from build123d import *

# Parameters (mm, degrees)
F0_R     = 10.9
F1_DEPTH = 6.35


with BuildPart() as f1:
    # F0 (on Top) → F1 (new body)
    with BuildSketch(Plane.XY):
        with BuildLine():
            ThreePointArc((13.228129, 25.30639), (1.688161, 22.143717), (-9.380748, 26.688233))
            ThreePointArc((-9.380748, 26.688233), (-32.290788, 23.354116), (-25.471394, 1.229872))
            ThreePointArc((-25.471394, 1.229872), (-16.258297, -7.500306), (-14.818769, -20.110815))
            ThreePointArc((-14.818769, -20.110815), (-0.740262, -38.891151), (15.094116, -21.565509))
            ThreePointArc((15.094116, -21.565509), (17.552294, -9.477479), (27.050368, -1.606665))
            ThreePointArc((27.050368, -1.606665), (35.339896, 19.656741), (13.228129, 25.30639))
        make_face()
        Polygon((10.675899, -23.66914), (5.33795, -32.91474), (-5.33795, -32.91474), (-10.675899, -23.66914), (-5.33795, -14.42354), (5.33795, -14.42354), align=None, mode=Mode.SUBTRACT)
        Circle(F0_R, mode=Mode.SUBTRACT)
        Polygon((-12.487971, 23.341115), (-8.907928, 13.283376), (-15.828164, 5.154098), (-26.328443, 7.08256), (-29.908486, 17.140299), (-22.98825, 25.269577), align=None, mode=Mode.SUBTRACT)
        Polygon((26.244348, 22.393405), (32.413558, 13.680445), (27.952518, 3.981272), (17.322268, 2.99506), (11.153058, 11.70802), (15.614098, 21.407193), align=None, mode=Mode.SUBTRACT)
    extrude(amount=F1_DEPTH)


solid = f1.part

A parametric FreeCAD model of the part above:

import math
import FreeCAD as App
import Part
import Sketcher
Q = App.Units.Quantity


def add_polygon(sketch, points):
    """Adds a closed chain of lines whose ends are joined by coincident constraints."""
    first, n = sketch.GeometryCount, len(points)
    for a, b in zip(points, points[1:] + points[:1]):
        sketch.addGeometry(Part.LineSegment(App.Vector(*a, 0), App.Vector(*b, 0)), False)
    for i in range(n):
        sketch.addConstraint(Sketcher.Constraint("Coincident", first + i, 2, first + (i + 1) % n, 1))

doc = App.newDocument("Part")
body = doc.addObject("PartDesign::Body", "Body")

sketch1 = body.newObject("Sketcher::SketchObject", "Sketch")
sketch1.AttachmentSupport = (doc.getObject("XY_Plane"), [""])
sketch1.MapMode = "FlatFace"
sketch1.addGeometry(Part.ArcOfCircle(Part.Circle(App.Vector(2.819327, 40.651181, 0), App.Vector(0, 0, 1), 18.542), math.radians(-131.14522), math.radians(-55.849856)), False)
sketch1.addGeometry(Part.ArcOfCircle(Part.Circle(App.Vector(-19.408207, 15.211837, 0), App.Vector(0, 0, 1), 15.24), math.radians(48.854781), math.radians(246.556352)), False)
sketch1.addGeometry(Part.ArcOfCircle(Part.Circle(App.Vector(-32.848273, -15.78152, 0), App.Vector(0, 0, 1), 18.542001), math.radians(-13.502386), math.radians(66.55635)), False)
sketch1.addGeometry(Part.ArcOfCircle(Part.Circle(App.Vector(0, -23.66914, 0), App.Vector(0, 0, 1), 15.24), math.radians(166.497611), math.radians(367.934072)), False)
sketch1.addGeometry(Part.ArcOfCircle(Part.Circle(App.Vector(33.458623, -19.006091, 0), App.Vector(0, 0, 1), 18.541999), math.radians(110.218888), math.radians(187.934074)), False)
sketch1.addGeometry(Part.ArcOfCircle(Part.Circle(App.Vector(21.783308, 12.694233, 0), App.Vector(0, 0, 1), 15.24), math.radians(-69.781109), math.radians(124.150142)), False)
add_polygon(sketch1, [(5.33795, -14.42354), (10.675899, -23.66914), (5.33795, -32.91474), (-5.33795, -32.91474), (-10.675899, -23.66914), (-5.33795, -14.42354)])
sketch1.addGeometry(Part.Circle(App.Vector(0, 0, 0), App.Vector(0, 0, 1), 10.9), False)
add_polygon(sketch1, [(-22.98825, 25.269577), (-12.487971, 23.341115), (-8.907928, 13.283376), (-15.828164, 5.154098), (-26.328443, 7.08256), (-29.908486, 17.140299)])
add_polygon(sketch1, [(15.614098, 21.407193), (26.244348, 22.393405), (32.413558, 13.680445), (27.952518, 3.981272), (17.322268, 2.99506), (11.153058, 11.70802)])
sketch1.addConstraint(Sketcher.Constraint("Tangent", 0, 1, 1, 1))
sketch1.addConstraint(Sketcher.Constraint("Tangent", 1, 2, 2, 2))
sketch1.addConstraint(Sketcher.Constraint("Tangent", 2, 1, 3, 1))
sketch1.addConstraint(Sketcher.Constraint("Tangent", 3, 2, 4, 2))
sketch1.addConstraint(Sketcher.Constraint("Tangent", 4, 1, 5, 1))
sketch1.addConstraint(Sketcher.Constraint("Tangent", 5, 2, 0, 2))
sketch1.addConstraint(Sketcher.Constraint("Horizontal", 8))
sketch1.addConstraint(Sketcher.Constraint("Horizontal", 11))
sketch1.addConstraint(Sketcher.Constraint("Coincident", 12, 3, -1, 1))
sketch1.addConstraint(Sketcher.Constraint("Equal", 0, 2))
sketch1.addConstraint(Sketcher.Constraint("Equal", 1, 3))
sketch1.addConstraint(Sketcher.Constraint("Equal", 2, 4))
sketch1.addConstraint(Sketcher.Constraint("Equal", 3, 5))
sketch1.addConstraint(Sketcher.Constraint("Symmetric", 6, 2, 9, 2, -2))
sketch1.addConstraint(Sketcher.Constraint("PointOnObject", 3, 3, -2))
sketch1.addConstraint(Sketcher.Constraint("Parallel", 6, 9))
sketch1.addConstraint(Sketcher.Constraint("Parallel", 7, 10))
sketch1.addConstraint(Sketcher.Constraint("Parallel", 13, 16))
sketch1.addConstraint(Sketcher.Constraint("Parallel", 14, 17))
sketch1.addConstraint(Sketcher.Constraint("Parallel", 15, 18))
sketch1.addConstraint(Sketcher.Constraint("Parallel", 19, 22))
sketch1.addConstraint(Sketcher.Constraint("Parallel", 20, 23))
sketch1.addConstraint(Sketcher.Constraint("Parallel", 21, 24))
sketch1.addConstraint(Sketcher.Constraint("Horizontal", 3, 3, 6, 2))
sketch1.addConstraint(Sketcher.Constraint("Vertical", 8, 2, 10, 2))
sketch1.addConstraint(Sketcher.Constraint("Vertical", 7, 2, 11, 2))
sketch1.addConstraint(Sketcher.Constraint("Equal", 10, 13))
sketch1.addConstraint(Sketcher.Constraint("Equal", 13, 14))
sketch1.addConstraint(Sketcher.Constraint("Equal", 14, 15))
sketch1.addConstraint(Sketcher.Constraint("Equal", 15, 16))
sketch1.addConstraint(Sketcher.Constraint("Equal", 18, 19))
sketch1.addConstraint(Sketcher.Constraint("Equal", 19, 20))
sketch1.addConstraint(Sketcher.Constraint("Equal", 20, 21))
sketch1.addConstraint(Sketcher.Constraint("Equal", 21, 22))
sketch1.addConstraint(Sketcher.Constraint("Radius", 1, Q("0.6 in")))
sketch1.addConstraint(Sketcher.Constraint("Radius", 0, Q("0.73 in")))
sketch1.addConstraint(Sketcher.Constraint("Angle", 6, Q("-60.000003 deg")))
sketch1.addConstraint(Sketcher.Constraint("Diameter", 12, 21.8))
sketch1.addConstraint(Sketcher.Constraint("DistanceY", 7, 2, 6, 2, Q("0.364 in")))
sketch1.addConstraint(Sketcher.Constraint("DistanceX", 8, 2, 8, 1, 10.6759))
sketch1.addConstraint(Sketcher.Constraint("DistanceY", -1, 1, 20, 2, Q("0.5386002 in")))
sketch1.addConstraint(Sketcher.Constraint("DistanceY", -1, 1, 15, 2, 5.154098))
sketch1.addConstraint(Sketcher.Constraint("DistanceY", -1, 1, 17, 2, 17.140299))
sketch1.addConstraint(Sketcher.Constraint("DistanceX", 2, 3, 0, 3, 35.6676))
sketch1.addConstraint(Sketcher.Constraint("DistanceY", 2, 3, 0, 3, 56.432701))
sketch1.addConstraint(Sketcher.Constraint("DistanceY", 5, 3, 0, 1, 13.994))
sketch1.addConstraint(Sketcher.Constraint("DistanceX", 13, 2, 0, 3, 15.307298))
sketch1.addConstraint(Sketcher.Constraint("DistanceX", 18, 2, 0, 1, 13.607502))
sketch1.addConstraint(Sketcher.Constraint("DistanceX", 22, 2, 4, 1, 9.7281))
sketch1.addConstraint(Sketcher.Constraint("DistanceY", -1, 1, 0, 3, 40.651181))
sketch1.addConstraint(Sketcher.Constraint("DistanceY", 3, 3, -1, 1, 23.66914))
sketch1.addConstraint(Sketcher.Constraint("DistanceX", -1, 1, 20, 2, 32.413558))
sketch1.addConstraint(Sketcher.Constraint("DistanceX", -1, 1, 21, 2, 27.952518))
sketch1.addConstraint(Sketcher.Constraint("DistanceY", -1, 1, 23, 2, 11.70802))
sketch1.addConstraint(Sketcher.Constraint("DistanceY", 14, 2, 1, 3, 1.928461))
pad1 = body.newObject("PartDesign::Pad", "Pad")
pad1.Profile = sketch1
pad1.Length = Q("0.25 in")

doc.recompute()
